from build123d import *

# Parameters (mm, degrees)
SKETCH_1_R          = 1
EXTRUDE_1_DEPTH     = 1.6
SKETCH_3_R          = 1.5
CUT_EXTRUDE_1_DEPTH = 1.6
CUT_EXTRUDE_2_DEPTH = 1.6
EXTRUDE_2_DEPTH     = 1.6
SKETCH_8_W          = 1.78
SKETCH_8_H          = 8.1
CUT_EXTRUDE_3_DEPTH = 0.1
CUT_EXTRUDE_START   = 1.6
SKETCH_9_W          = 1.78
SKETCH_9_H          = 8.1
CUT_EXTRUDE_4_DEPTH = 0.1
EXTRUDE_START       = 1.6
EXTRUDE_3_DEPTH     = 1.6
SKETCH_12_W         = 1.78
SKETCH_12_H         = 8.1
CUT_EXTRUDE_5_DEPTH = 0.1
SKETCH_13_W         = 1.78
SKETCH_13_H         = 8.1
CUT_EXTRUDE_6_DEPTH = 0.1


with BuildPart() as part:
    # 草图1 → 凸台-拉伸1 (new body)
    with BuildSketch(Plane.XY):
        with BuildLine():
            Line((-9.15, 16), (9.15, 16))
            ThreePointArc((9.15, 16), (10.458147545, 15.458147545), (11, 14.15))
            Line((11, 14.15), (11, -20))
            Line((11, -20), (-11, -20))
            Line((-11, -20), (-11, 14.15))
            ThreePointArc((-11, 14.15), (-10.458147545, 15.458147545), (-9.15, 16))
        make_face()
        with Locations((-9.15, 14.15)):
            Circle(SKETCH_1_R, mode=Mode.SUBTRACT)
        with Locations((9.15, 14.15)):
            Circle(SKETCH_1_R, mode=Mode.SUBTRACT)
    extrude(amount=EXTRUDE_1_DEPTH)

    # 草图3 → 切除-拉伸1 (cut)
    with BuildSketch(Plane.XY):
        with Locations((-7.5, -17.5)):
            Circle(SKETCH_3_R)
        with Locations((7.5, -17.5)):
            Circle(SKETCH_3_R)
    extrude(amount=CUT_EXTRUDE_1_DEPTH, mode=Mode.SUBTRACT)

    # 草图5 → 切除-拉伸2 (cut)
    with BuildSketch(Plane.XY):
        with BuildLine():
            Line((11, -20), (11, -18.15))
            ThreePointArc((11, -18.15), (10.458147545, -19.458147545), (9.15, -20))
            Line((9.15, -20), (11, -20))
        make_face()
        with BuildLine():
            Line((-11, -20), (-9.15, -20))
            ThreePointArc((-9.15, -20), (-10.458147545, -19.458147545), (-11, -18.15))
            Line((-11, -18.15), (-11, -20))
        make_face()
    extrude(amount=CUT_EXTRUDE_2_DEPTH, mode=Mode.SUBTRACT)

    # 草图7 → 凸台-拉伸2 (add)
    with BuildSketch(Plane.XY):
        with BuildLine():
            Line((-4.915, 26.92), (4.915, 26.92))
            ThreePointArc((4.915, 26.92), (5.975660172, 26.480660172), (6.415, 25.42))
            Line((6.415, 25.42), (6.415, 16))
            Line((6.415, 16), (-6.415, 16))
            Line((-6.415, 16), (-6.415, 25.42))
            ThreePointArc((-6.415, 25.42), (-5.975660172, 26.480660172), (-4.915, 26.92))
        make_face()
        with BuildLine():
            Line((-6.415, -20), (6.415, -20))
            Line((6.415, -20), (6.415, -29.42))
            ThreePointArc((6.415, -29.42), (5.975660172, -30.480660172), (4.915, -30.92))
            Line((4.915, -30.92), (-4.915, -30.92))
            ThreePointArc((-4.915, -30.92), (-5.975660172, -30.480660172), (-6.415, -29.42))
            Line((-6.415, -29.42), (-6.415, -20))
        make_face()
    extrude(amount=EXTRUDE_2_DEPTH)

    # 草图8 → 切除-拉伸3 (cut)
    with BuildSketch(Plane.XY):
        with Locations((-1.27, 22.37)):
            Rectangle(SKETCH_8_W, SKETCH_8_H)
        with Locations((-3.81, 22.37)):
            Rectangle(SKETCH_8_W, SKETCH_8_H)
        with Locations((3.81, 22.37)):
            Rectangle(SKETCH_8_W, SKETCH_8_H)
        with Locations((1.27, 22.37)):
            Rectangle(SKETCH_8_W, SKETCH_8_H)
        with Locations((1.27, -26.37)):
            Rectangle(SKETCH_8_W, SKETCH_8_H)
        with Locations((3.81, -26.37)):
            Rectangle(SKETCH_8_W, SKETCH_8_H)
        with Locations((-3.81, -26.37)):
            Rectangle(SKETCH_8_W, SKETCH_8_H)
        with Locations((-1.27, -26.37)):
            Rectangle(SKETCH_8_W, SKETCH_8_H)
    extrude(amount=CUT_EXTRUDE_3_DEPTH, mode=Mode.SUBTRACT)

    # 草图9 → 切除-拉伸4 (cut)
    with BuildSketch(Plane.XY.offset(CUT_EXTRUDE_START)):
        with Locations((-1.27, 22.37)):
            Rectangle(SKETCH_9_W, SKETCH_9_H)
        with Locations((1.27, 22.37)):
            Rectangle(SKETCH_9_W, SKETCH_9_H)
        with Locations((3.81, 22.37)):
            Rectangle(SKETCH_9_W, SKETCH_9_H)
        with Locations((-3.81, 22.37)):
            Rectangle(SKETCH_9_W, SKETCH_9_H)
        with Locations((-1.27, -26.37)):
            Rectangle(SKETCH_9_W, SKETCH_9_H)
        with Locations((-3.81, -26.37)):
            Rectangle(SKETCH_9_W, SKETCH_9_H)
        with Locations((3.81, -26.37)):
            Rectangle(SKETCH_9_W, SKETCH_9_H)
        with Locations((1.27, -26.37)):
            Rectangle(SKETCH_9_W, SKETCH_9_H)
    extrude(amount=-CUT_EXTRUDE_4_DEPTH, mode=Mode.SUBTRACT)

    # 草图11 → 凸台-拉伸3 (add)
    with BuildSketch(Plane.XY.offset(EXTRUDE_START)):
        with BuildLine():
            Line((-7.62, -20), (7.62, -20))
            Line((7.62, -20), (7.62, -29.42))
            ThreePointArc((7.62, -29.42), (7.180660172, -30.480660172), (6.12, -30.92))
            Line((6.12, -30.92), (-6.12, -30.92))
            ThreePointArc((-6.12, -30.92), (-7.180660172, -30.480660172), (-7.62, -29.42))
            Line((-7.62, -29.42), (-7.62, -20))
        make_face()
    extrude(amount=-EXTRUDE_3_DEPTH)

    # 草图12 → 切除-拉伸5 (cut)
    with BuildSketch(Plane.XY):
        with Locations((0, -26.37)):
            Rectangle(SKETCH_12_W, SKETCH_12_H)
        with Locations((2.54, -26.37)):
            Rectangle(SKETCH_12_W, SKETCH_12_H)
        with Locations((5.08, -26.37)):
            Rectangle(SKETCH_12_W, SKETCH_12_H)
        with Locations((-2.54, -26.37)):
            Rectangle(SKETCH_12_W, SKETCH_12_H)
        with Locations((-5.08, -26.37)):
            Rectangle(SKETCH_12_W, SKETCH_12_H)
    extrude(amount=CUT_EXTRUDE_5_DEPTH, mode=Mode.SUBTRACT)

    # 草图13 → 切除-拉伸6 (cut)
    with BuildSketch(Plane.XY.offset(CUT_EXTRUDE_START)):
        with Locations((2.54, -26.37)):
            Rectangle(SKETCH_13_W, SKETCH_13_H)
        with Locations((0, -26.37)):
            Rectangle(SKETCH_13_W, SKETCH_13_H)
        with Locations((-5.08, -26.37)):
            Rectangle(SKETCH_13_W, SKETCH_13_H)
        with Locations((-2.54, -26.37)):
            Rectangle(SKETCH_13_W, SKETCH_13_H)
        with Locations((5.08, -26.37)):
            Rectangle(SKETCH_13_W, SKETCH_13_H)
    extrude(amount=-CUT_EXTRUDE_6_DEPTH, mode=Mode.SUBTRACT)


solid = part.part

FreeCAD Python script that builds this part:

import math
import FreeCAD as App
import Part
import Sketcher

V = App.Vector
Q = App.Units.Quantity

doc = App.newDocument("Part")
body = doc.addObject("PartDesign::Body", "Body")

sketch1 = body.newObject("Sketcher::SketchObject", "Sketch")
sketch1.AttachmentSupport = (doc.getObject("XY_Plane"), [""])
sketch1.MapMode = "FlatFace"
sketch1.addGeometry(Part.LineSegment(V(9.2, 16, 0), V(-9.2, 16, 0)), False)
sketch1.addGeometry(Part.ArcOfCircle(Part.Circle(V(-9.1, 14.1, 0), V(0, 0, 1), 1.9), math.radians(90), math.radians(180)), False)
sketch1.addGeometry(Part.LineSegment(V(-11, 14.2, 0), V(-11, -20, 0)), False)
sketch1.addGeometry(Part.LineSegment(V(-11, -20, 0), V(11, -20, 0)), False)
sketch1.addGeometry(Part.LineSegment(V(11, -20, 0), V(11, 14.2, 0)), False)
sketch1.addGeometry(Part.ArcOfCircle(Part.Circle(V(9.1, 14.1, 0), V(0, 0, 1), 1.9), math.radians(0), math.radians(90)), False)
sketch1.addGeometry(Part.Circle(V(9.2, 14.2, 0), V(0, 0, 1), 1), False)
sketch1.addGeometry(Part.Circle(V(-9.2, 14.2, 0), V(0, 0, 1), 1), False)
sketch1.addConstraint(Sketcher.Constraint("Tangent", 0, 2, 1, 1))
sketch1.addConstraint(Sketcher.Constraint("Tangent", 1, 2, 2, 1))
sketch1.addConstraint(Sketcher.Constraint("Coincident", 2, 2, 3, 1))
sketch1.addConstraint(Sketcher.Constraint("Coincident", 3, 2, 4, 1))
sketch1.addConstraint(Sketcher.Constraint("Tangent", 4, 2, 5, 1))
sketch1.addConstraint(Sketcher.Constraint("Tangent", 5, 2, 0, 1))
sketch1.addConstraint(Sketcher.Constraint("Horizontal", 0))
sketch1.addConstraint(Sketcher.Constraint("Vertical", 2))
sketch1.addConstraint(Sketcher.Constraint("Horizontal", 3))
sketch1.addConstraint(Sketcher.Constraint("Vertical", 4))
sketch1.addConstraint(Sketcher.Constraint("Coincident", 6, 3, 5, 3))
sketch1.addConstraint(Sketcher.Constraint("Coincident", 7, 3, 1, 3))
sketch1.addConstraint(Sketcher.Constraint("Equal", 1, 5))
sketch1.addConstraint(Sketcher.Constraint("Equal", 6, 7))
sketch1.addConstraint(Sketcher.Constraint("Diameter", 6, Q("2 mm")))
sketch1.addConstraint(Sketcher.Constraint("DistanceX", 3, 1, 3, 2, Q("22 mm")))
sketch1.addConstraint(Sketcher.Constraint("Radius", 1, Q("1.85 mm")))
sketch1.addConstraint(Sketcher.Constraint("DistanceY", -1, 1, 0, 2, Q("16 mm")))
sketch1.addConstraint(Sketcher.Constraint("DistanceX", 1, 2, -1, 1, Q("11 mm")))
sketch1.addConstraint(Sketcher.Constraint("DistanceY", 2, 2, -1, 1, Q("20 mm")))
pad1 = body.newObject("PartDesign::Pad", "Pad")
pad1.Profile = sketch1
pad1.Length = 1.6

sketch2 = body.newObject("Sketcher::SketchObject", "Sketch001")
sketch2.AttachmentSupport = (doc.getObject("XY_Plane"), [""])
sketch2.MapMode = "FlatFace"
sketch2.addGeometry(Part.Circle(V(-7.5, -17.5, 0), V(0, 0, 1), 1.5), False)
sketch2.addGeometry(Part.Circle(V(7.5, -17.5, 0), V(0, 0, 1), 1.5), False)
sketch2.addConstraint(Sketcher.Constraint("Equal", 0, 1))
sketch2.addConstraint(Sketcher.Constraint("Symmetric", 0, 3, 1, 3, -2))
sketch2.addConstraint(Sketcher.Constraint("Diameter", 0, Q("3 mm")))
sketch2.addConstraint(Sketcher.Constraint("DistanceX", 0, 3, 1, 3, Q("15 mm")))
sketch2.addConstraint(Sketcher.Constraint("DistanceY", 0, 3, -1, 1, Q("17.5 mm")))
pocket1 = body.newObject("PartDesign::Pocket", "Pocket")
pocket1.Profile = sketch2
pocket1.Length = 1.6
pocket1.Reversed = True

sketch3 = body.newObject("Sketcher::SketchObject", "Sketch002")
sketch3.AttachmentSupport = (doc.getObject("XY_Plane"), [""])
sketch3.MapMode = "FlatFace"
sketch3.addGeometry(Part.LineSegment(V(11, -20, 0), V(11, -18.1, 0)), False)
sketch3.addGeometry(Part.ArcOfCircle(Part.Circle(V(9.1, -18.1, 0), V(0, 0, 1), 1.9), math.radians(-90), math.radians(0)), False)
sketch3.addGeometry(Part.LineSegment(V(9.2, -20, 0), V(11, -20, 0)), False)
sketch3.addGeometry(Part.LineSegment(V(-11, -20, 0), V(-9.2, -20, 0)), False)
sketch3.addGeometry(Part.ArcOfCircle(Part.Circle(V(-9.1, -18.1, 0), V(0, 0, 1), 1.9), math.radians(-180), math.radians(-90)), False)
sketch3.addGeometry(Part.LineSegment(V(-11, -18.1, 0), V(-11, -20, 0)), False)
sketch3.addConstraint(Sketcher.Constraint("Tangent", 0, 2, 1, 2))
sketch3.addConstraint(Sketcher.Constraint("Tangent", 1, 1, 2, 1))
sketch3.addConstraint(Sketcher.Constraint("Coincident", 2, 2, 0, 1))
sketch3.addConstraint(Sketcher.Constraint("Tangent", 3, 2, 4, 2))
sketch3.addConstraint(Sketcher.Constraint("Tangent", 4, 1, 5, 1))
sketch3.addConstraint(Sketcher.Constraint("Coincident", 5, 2, 3, 1))
sketch3.addConstraint(Sketcher.Constraint("Vertical", 0))
sketch3.addConstraint(Sketcher.Constraint("Horizontal", 2))
sketch3.addConstraint(Sketcher.Constraint("Horizontal", 3))
sketch3.addConstraint(Sketcher.Constraint("Vertical", 5))
sketch3.addConstraint(Sketcher.Constraint("Equal", 1, 4))
sketch3.addConstraint(Sketcher.Constraint("Symmetric", 1, 3, 4, 3, -2))
sketch3.addConstraint(Sketcher.Constraint("Radius", 1, Q("1.85 mm")))
sketch3.addConstraint(Sketcher.Constraint("DistanceX", -1, 1, 0, 2, Q("11 mm")))
sketch3.addConstraint(Sketcher.Constraint("DistanceY", 1, 1, -1, 1, Q("20 mm")))
pocket2 = body.newObject("PartDesign::Pocket", "Pocket001")
pocket2.Profile = sketch3
pocket2.Length = 1.6
pocket2.Reversed = True

sketch4 = body.newObject("Sketcher::SketchObject", "Sketch003")
sketch4.AttachmentSupport = (doc.getObject("XY_Plane"), [""])
sketch4.MapMode = "FlatFace"
sketch4.addGeometry(Part.LineSegment(V(4.9, 26.9, 0), V(-4.9, 26.9, 0)), False)
sketch4.addGeometry(Part.ArcOfCircle(Part.Circle(V(-4.9, 25.4, 0), V(0, 0, 1), 1.5), math.radians(90), math.radians(180)), False)
sketch4.addGeometry(Part.LineSegment(V(-6.4, 25.4, 0), V(-6.4, 16, 0)), False)
sketch4.addGeometry(Part.LineSegment(V(-6.4, 16, 0), V(6.4, 16, 0)), False)
sketch4.addGeometry(Part.LineSegment(V(6.4, 16, 0), V(6.4, 25.4, 0)), False)
sketch4.addGeometry(Part.ArcOfCircle(Part.Circle(V(4.9, 25.4, 0), V(0, 0, 1), 1.5), math.radians(0), math.radians(90)), False)
sketch4.addGeometry(Part.LineSegment(V(6.4, -20, 0), V(-6.4, -20, 0)), False)
sketch4.addGeometry(Part.LineSegment(V(-6.4, -20, 0), V(-6.4, -29.4, 0)), False)
sketch4.addGeometry(Part.ArcOfCircle(Part.Circle(V(-4.9, -29.4, 0), V(0, 0, 1), 1.5), math.radians(180), math.radians(270)), False)
sketch4.addGeometry(Part.LineSegment(V(-4.9, -30.9, 0), V(4.9, -30.9, 0)), False)
sketch4.addGeometry(Part.ArcOfCircle(Part.Circle(V(4.9, -29.4, 0), V(0, 0, 1), 1.5), math.radians(-90), math.radians(0)), False)
sketch4.addGeometry(Part.LineSegment(V(6.4, -29.4, 0), V(6.4, -20, 0)), False)
sketch4.addConstraint(Sketcher.Constraint("Tangent", 0, 2, 1, 1))
sketch4.addConstraint(Sketcher.Constraint("Tangent", 1, 2, 2, 1))
sketch4.addConstraint(Sketcher.Constraint("Coincident", 2, 2, 3, 1))
sketch4.addConstraint(Sketcher.Constraint("Coincident", 3, 2, 4, 1))
sketch4.addConstraint(Sketcher.Constraint("Tangent", 4, 2, 5, 1))
sketch4.addConstraint(Sketcher.Constraint("Tangent", 5, 2, 0, 1))
sketch4.addConstraint(Sketcher.Constraint("Coincident", 6, 2, 7, 1))
sketch4.addConstraint(Sketcher.Constraint("Tangent", 7, 2, 8, 1))
sketch4.addConstraint(Sketcher.Constraint("Tangent", 8, 2, 9, 1))
sketch4.addConstraint(Sketcher.Constraint("Tangent", 9, 2, 10, 1))
sketch4.addConstraint(Sketcher.Constraint("Tangent", 10, 2, 11, 1))
sketch4.addConstraint(Sketcher.Constraint("Coincident", 11, 2, 6, 1))
sketch4.addConstraint(Sketcher.Constraint("Horizontal", 0))
sketch4.addConstraint(Sketcher.Constraint("Vertical", 2))
sketch4.addConstraint(Sketcher.Constraint("Horizontal", 3))
sketch4.addConstraint(Sketcher.Constraint("Vertical", 4))
sketch4.addConstraint(Sketcher.Constraint("Horizontal", 6))
sketch4.addConstraint(Sketcher.Constraint("Vertical", 7))
sketch4.addConstraint(Sketcher.Constraint("Horizontal", 9))
sketch4.addConstraint(Sketcher.Constraint("Vertical", 11))
sketch4.addConstraint(Sketcher.Constraint("Equal", 1, 5))
sketch4.addConstraint(Sketcher.Constraint("Equal", 5, 8))
sketch4.addConstraint(Sketcher.Constraint("Equal", 8, 10))
sketch4.addConstraint(Sketcher.Constraint("Vertical", 1, 3, 8, 3))
sketch4.addConstraint(Sketcher.Constraint("Vertical", 5, 3, 10, 3))
sketch4.addConstraint(Sketcher.Constraint("Equal", 4, 7))
sketch4.addConstraint(Sketcher.Constraint("Radius", 1, Q("1.5 mm")))
sketch4.addConstraint(Sketcher.Constraint("DistanceY", -1, 1, 2, 2, Q("16 mm")))
sketch4.addConstraint(Sketcher.Constraint("DistanceY", 6, 2, -1, 1, Q("20 mm")))
sketch4.addConstraint(Sketcher.Constraint("DistanceX", 0, 2, 0, 1, Q("9.83 mm")))
sketch4.addConstraint(Sketcher.Constraint("DistanceY", 2, 2, 2, 1, Q("9.42 mm")))
sketch4.addConstraint(Sketcher.Constraint("DistanceX", 1, 3, -1, 1, Q("4.915 mm")))
pad2 = body.newObject("PartDesign::Pad", "Pad001")
pad2.Profile = sketch4
pad2.Length = 1.6

sketch5 = body.newObject("Sketcher::SketchObject", "Sketch004")
sketch5.AttachmentSupport = (doc.getObject("XY_Plane"), [""])
sketch5.MapMode = "FlatFace"
sketch5.addGeometry(Part.LineSegment(V(-2.2, 26.4, 0), V(-2.2, 18.3, 0)), False)
sketch5.addGeometry(Part.LineSegment(V(-2.2, 18.3, 0), V(-0.4, 18.3, 0)), False)
sketch5.addGeometry(Part.LineSegment(V(-0.4, 18.3, 0), V(-0.4, 26.4, 0)), False)
sketch5.addGeometry(Part.LineSegment(V(-0.4, 26.4, 0), V(-2.2, 26.4, 0)), False)
sketch5.addGeometry(Part.LineSegment(V(-4.7, 26.4, 0), V(-4.7, 18.3, 0)), False)
sketch5.addGeometry(Part.LineSegment(V(-4.7, 18.3, 0), V(-2.9, 18.3, 0)), False)
sketch5.addGeometry(Part.LineSegment(V(-2.9, 18.3, 0), V(-2.9, 26.4, 0)), False)
sketch5.addGeometry(Part.LineSegment(V(-2.9, 26.4, 0), V(-4.7, 26.4, 0)), False)
sketch5.addGeometry(Part.LineSegment(V(2.9, 26.4, 0), V(2.9, 18.3, 0)), False)
sketch5.addGeometry(Part.LineSegment(V(2.9, 18.3, 0), V(4.7, 18.3, 0)), False)
sketch5.addGeometry(Part.LineSegment(V(4.7, 18.3, 0), V(4.7, 26.4, 0)), False)
sketch5.addGeometry(Part.LineSegment(V(4.7, 26.4, 0), V(2.9, 26.4, 0)), False)
sketch5.addGeometry(Part.LineSegment(V(0.4, 26.4, 0), V(0.4, 18.3, 0)), False)
sketch5.addGeometry(Part.LineSegment(V(0.4, 18.3, 0), V(2.2, 18.3, 0)), False)
sketch5.addGeometry(Part.LineSegment(V(2.2, 18.3, 0), V(2.2, 26.4, 0)), False)
sketch5.addGeometry(Part.LineSegment(V(2.2, 26.4, 0), V(0.4, 26.4, 0)), False)
sketch5.addGeometry(Part.LineSegment(V(0.4, -22.3, 0), V(0.4, -30.4, 0)), False)
sketch5.addGeometry(Part.LineSegment(V(0.4, -30.4, 0), V(2.2, -30.4, 0)), False)
sketch5.addGeometry(Part.LineSegment(V(2.2, -30.4, 0), V(2.2, -22.3, 0)), False)
sketch5.addGeometry(Part.LineSegment(V(2.2, -22.3, 0), V(0.4, -22.3, 0)), False)
sketch5.addGeometry(Part.LineSegment(V(2.9, -22.3, 0), V(2.9, -30.4, 0)), False)
sketch5.addGeometry(Part.LineSegment(V(2.9, -30.4, 0), V(4.7, -30.4, 0)), False)
sketch5.addGeometry(Part.LineSegment(V(4.7, -30.4, 0), V(4.7, -22.3, 0)), False)
sketch5.addGeometry(Part.LineSegment(V(4.7, -22.3, 0), V(2.9, -22.3, 0)), False)
sketch5.addGeometry(Part.LineSegment(V(-4.7, -22.3, 0), V(-4.7, -30.4, 0)), False)
sketch5.addGeometry(Part.LineSegment(V(-4.7, -30.4, 0), V(-2.9, -30.4, 0)), False)
sketch5.addGeometry(Part.LineSegment(V(-2.9, -30.4, 0), V(-2.9, -22.3, 0)), False)
sketch5.addGeometry(Part.LineSegment(V(-2.9, -22.3, 0), V(-4.7, -22.3, 0)), False)
sketch5.addGeometry(Part.LineSegment(V(-2.2, -22.3, 0), V(-2.2, -30.4, 0)), False)
sketch5.addGeometry(Part.LineSegment(V(-2.2, -30.4, 0), V(-0.4, -30.4, 0)), False)
sketch5.addGeometry(Part.LineSegment(V(-0.4, -30.4, 0), V(-0.4, -22.3, 0)), False)
sketch5.addGeometry(Part.LineSegment(V(-0.4, -22.3, 0), V(-2.2, -22.3, 0)), False)
sketch5.addConstraint(Sketcher.Constraint("Coincident", 0, 2, 1, 1))
sketch5.addConstraint(Sketcher.Constraint("Coincident", 1, 2, 2, 1))
sketch5.addConstraint(Sketcher.Constraint("Coincident", 2, 2, 3, 1))
sketch5.addConstraint(Sketcher.Constraint("Coincident", 3, 2, 0, 1))
sketch5.addConstraint(Sketcher.Constraint("Coincident", 4, 2, 5, 1))
sketch5.addConstraint(Sketcher.Constraint("Coincident", 5, 2, 6, 1))
sketch5.addConstraint(Sketcher.Constraint("Coincident", 6, 2, 7, 1))
sketch5.addConstraint(Sketcher.Constraint("Coincident", 7, 2, 4, 1))
sketch5.addConstraint(Sketcher.Constraint("Coincident", 8, 2, 9, 1))
sketch5.addConstraint(Sketcher.Constraint("Coincident", 9, 2, 10, 1))
sketch5.addConstraint(Sketcher.Constraint("Coincident", 10, 2, 11, 1))
sketch5.addConstraint(Sketcher.Constraint("Coincident", 11, 2, 8, 1))
sketch5.addConstraint(Sketcher.Constraint("Coincident", 12, 2, 13, 1))
sketch5.addConstraint(Sketcher.Constraint("Coincident", 13, 2, 14, 1))
sketch5.addConstraint(Sketcher.Constraint("Coincident", 14, 2, 15, 1))
sketch5.addConstraint(Sketcher.Constraint("Coincident", 15, 2, 12, 1))
sketch5.addConstraint(Sketcher.Constraint("Coincident", 16, 2, 17, 1))
sketch5.addConstraint(Sketcher.Constraint("Coincident", 17, 2, 18, 1))
sketch5.addConstraint(Sketcher.Constraint("Coincident", 18, 2, 19, 1))
sketch5.addConstraint(Sketcher.Constraint("Coincident", 19, 2, 16, 1))
sketch5.addConstraint(Sketcher.Constraint("Coincident", 20, 2, 21, 1))
sketch5.addConstraint(Sketcher.Constraint("Coincident", 21, 2, 22, 1))
sketch5.addConstraint(Sketcher.Constraint("Coincident", 22, 2, 23, 1))
sketch5.addConstraint(Sketcher.Constraint("Coincident", 23, 2, 20, 1))
sketch5.addConstraint(Sketcher.Constraint("Coincident", 24, 2, 25, 1))
sketch5.addConstraint(Sketcher.Constraint("Coincident", 25, 2, 26, 1))
sketch5.addConstraint(Sketcher.Constraint("Coincident", 26, 2, 27, 1))
sketch5.addConstraint(Sketcher.Constraint("Coincident", 27, 2, 24, 1))
sketch5.addConstraint(Sketcher.Constraint("Coincident", 28, 2, 29, 1))
sketch5.addConstraint(Sketcher.Constraint("Coincident", 29, 2, 30, 1))
sketch5.addConstraint(Sketcher.Constraint("Coincident", 30, 2, 31, 1))
sketch5.addConstraint(Sketcher.Constraint("Coincident", 31, 2, 28, 1))
sketch5.addConstraint(Sketcher.Constraint("Vertical", 0))
sketch5.addConstraint(Sketcher.Constraint("Horizontal", 1))
sketch5.addConstraint(Sketcher.Constraint("Vertical", 2))
sketch5.addConstraint(Sketcher.Constraint("Horizontal", 3))
sketch5.addConstraint(Sketcher.Constraint("Vertical", 4))
sketch5.addConstraint(Sketcher.Constraint("Horizontal", 5))
sketch5.addConstraint(Sketcher.Constraint("Vertical", 6))
sketch5.addConstraint(Sketcher.Constraint("Horizontal", 7))
sketch5.addConstraint(Sketcher.Constraint("Vertical", 8))
sketch5.addConstraint(Sketcher.Constraint("Horizontal", 9))
sketch5.addConstraint(Sketcher.Constraint("Vertical", 10))
sketch5.addConstraint(Sketcher.Constraint("Horizontal", 11))
sketch5.addConstraint(Sketcher.Constraint("Vertical", 12))
sketch5.addConstraint(Sketcher.Constraint("Horizontal", 13))
sketch5.addConstraint(Sketcher.Constraint("Vertical", 14))
sketch5.addConstraint(Sketcher.Constraint("Horizontal", 15))
sketch5.addConstraint(Sketcher.Constraint("Vertical", 16))
sketch5.addConstraint(Sketcher.Constraint("Horizontal", 17))
sketch5.addConstraint(Sketcher.Constraint("Vertical", 18))
sketch5.addConstraint(Sketcher.Constraint("Horizontal", 19))
sketch5.addConstraint(Sketcher.Constraint("Vertical", 20))
sketch5.addConstraint(Sketcher.Constraint("Horizontal", 21))
sketch5.addConstraint(Sketcher.Constraint("Vertical", 22))
sketch5.addConstraint(Sketcher.Constraint("Horizontal", 23))
sketch5.addConstraint(Sketcher.Constraint("Vertical", 24))
sketch5.addConstraint(Sketcher.Constraint("Horizontal", 25))
sketch5.addConstraint(Sketcher.Constraint("Vertical", 26))
sketch5.addConstraint(Sketcher.Constraint("Horizontal", 27))
sketch5.addConstraint(Sketcher.Constraint("Vertical", 28))
sketch5.addConstraint(Sketcher.Constraint("Horizontal", 29))
sketch5.addConstraint(Sketcher.Constraint("Vertical", 30))
sketch5.addConstraint(Sketcher.Constraint("Horizontal", 31))
sketch5.addConstraint(Sketcher.Constraint("Symmetric", 5, 2, 8, 2, -2))
sketch5.addConstraint(Sketcher.Constraint("Symmetric", 7, 2, 10, 2, -2))
sketch5.addConstraint(Sketcher.Constraint("Symmetric", 1, 2, 12, 2, -2))
sketch5.addConstraint(Sketcher.Constraint("Symmetric", 3, 2, 14, 2, -2))
sketch5.addConstraint(Sketcher.Constraint("Symmetric", 21, 2, 24, 2, -2))
sketch5.addConstraint(Sketcher.Constraint("Symmetric", 23, 2, 26, 2, -2))
sketch5.addConstraint(Sketcher.Constraint("Symmetric", 17, 2, 28, 2, -2))
sketch5.addConstraint(Sketcher.Constraint("Symmetric", 19, 2, 30, 2, -2))
sketch5.addConstraint(Sketcher.Constraint("Horizontal", 1, 2, 4, 2))
sketch5.addConstraint(Sketcher.Constraint("Horizontal", 3, 2, 6, 2))
sketch5.addConstraint(Sketcher.Constraint("Horizontal", 17, 2, 20, 2))
sketch5.addConstraint(Sketcher.Constraint("Horizontal", 19, 2, 22, 2))
sketch5.addConstraint(Sketcher.Constraint("Vertical", 15, 2, 16, 2))
sketch5.addConstraint(Sketcher.Constraint("Vertical", 14, 2, 17, 2))
sketch5.addConstraint(Sketcher.Constraint("Vertical", 11, 2, 20, 2))
sketch5.addConstraint(Sketcher.Constraint("Vertical", 10, 2, 21, 2))
sketch5.addConstraint(Sketcher.Constraint("Equal", 3, 5))
sketch5.addConstraint(Sketcher.Constraint("Equal", 14, 16))
sketch5.addConstraint(Sketcher.Constraint("DistanceY", 0, 2, 0, 1, Q("8.1 mm")))
sketch5.addConstraint(Sketcher.Constraint("DistanceX", 1, 1, 1, 2, Q("1.78 mm")))
sketch5.addConstraint(Sketcher.Constraint("DistanceX", 4, 2, -1, 1, Q("4.7 mm")))
sketch5.addConstraint(Sketcher.Constraint("DistanceX", 1, 2, 8, 2, Q("3.3 mm")))
sketch5.addConstraint(Sketcher.Constraint("DistanceY", -1, 1, 0, 2, Q("18.32 mm")))
sketch5.addConstraint(Sketcher.Constraint("DistanceY", 16, 2, -1, 1, Q("30.42 mm")))
pocket3 = body.newObject("PartDesign::Pocket", "Pocket002")
pocket3.Profile = sketch5
pocket3.Length = 0.1
pocket3.Reversed = True

sketch6 = body.newObject("Sketcher::SketchObject", "Sketch005")
sketch6.AttachmentSupport = (doc.getObject("XY_Plane"), [""])
sketch6.MapMode = "FlatFace"
sketch6.AttachmentOffset = App.Placement(V(0, 0, 1.6), App.Rotation())
sketch6.addGeometry(Part.LineSegment(V(-2.2, 26.4, 0), V(-2.2, 18.3, 0)), False)
sketch6.addGeometry(Part.LineSegment(V(-2.2, 18.3, 0), V(-0.4, 18.3, 0)), False)
sketch6.addGeometry(Part.LineSegment(V(-0.4, 18.3, 0), V(-0.4, 26.4, 0)), False)
sketch6.addGeometry(Part.LineSegment(V(-0.4, 26.4, 0), V(-2.2, 26.4, 0)), False)
sketch6.addGeometry(Part.LineSegment(V(0.4, 26.4, 0), V(0.4, 18.3, 0)), False)
sketch6.addGeometry(Part.LineSegment(V(0.4, 18.3, 0), V(2.2, 18.3, 0)), False)
sketch6.addGeometry(Part.LineSegment(V(2.2, 18.3, 0), V(2.2, 26.4, 0)), False)
sketch6.addGeometry(Part.LineSegment(V(2.2, 26.4, 0), V(0.4, 26.4, 0)), False)
sketch6.addGeometry(Part.LineSegment(V(2.9, 26.4, 0), V(2.9, 18.3, 0)), False)
sketch6.addGeometry(Part.LineSegment(V(2.9, 18.3, 0), V(4.7, 18.3, 0)), False)
sketch6.addGeometry(Part.LineSegment(V(4.7, 18.3, 0), V(4.7, 26.4, 0)), False)
sketch6.addGeometry(Part.LineSegment(V(4.7, 26.4, 0), V(2.9, 26.4, 0)), False)
sketch6.addGeometry(Part.LineSegment(V(-4.7, 26.4, 0), V(-4.7, 18.3, 0)), False)
sketch6.addGeometry(Part.LineSegment(V(-4.7, 18.3, 0), V(-2.9, 18.3, 0)), False)
sketch6.addGeometry(Part.LineSegment(V(-2.9, 18.3, 0), V(-2.9, 26.4, 0)), False)
sketch6.addGeometry(Part.LineSegment(V(-2.9, 26.4, 0), V(-4.7, 26.4, 0)), False)
sketch6.addGeometry(Part.LineSegment(V(-2.2, -22.3, 0), V(-2.2, -30.4, 0)), False)
sketch6.addGeometry(Part.LineSegment(V(-2.2, -30.4, 0), V(-0.4, -30.4, 0)), False)
sketch6.addGeometry(Part.LineSegment(V(-0.4, -30.4, 0), V(-0.4, -22.3, 0)), False)
sketch6.addGeometry(Part.LineSegment(V(-0.4, -22.3, 0), V(-2.2, -22.3, 0)), False)
sketch6.addGeometry(Part.LineSegment(V(-4.7, -22.3, 0), V(-4.7, -30.4, 0)), False)
sketch6.addGeometry(Part.LineSegment(V(-4.7, -30.4, 0), V(-2.9, -30.4, 0)), False)
sketch6.addGeometry(Part.LineSegment(V(-2.9, -30.4, 0), V(-2.9, -22.3, 0)), False)
sketch6.addGeometry(Part.LineSegment(V(-2.9, -22.3, 0), V(-4.7, -22.3, 0)), False)
sketch6.addGeometry(Part.LineSegment(V(2.9, -22.3, 0), V(2.9, -30.4, 0)), False)
sketch6.addGeometry(Part.LineSegment(V(2.9, -30.4, 0), V(4.7, -30.4, 0)), False)
sketch6.addGeometry(Part.LineSegment(V(4.7, -30.4, 0), V(4.7, -22.3, 0)), False)
sketch6.addGeometry(Part.LineSegment(V(4.7, -22.3, 0), V(2.9, -22.3, 0)), False)
sketch6.addGeometry(Part.LineSegment(V(0.4, -22.3, 0), V(0.4, -30.4, 0)), False)
sketch6.addGeometry(Part.LineSegment(V(0.4, -30.4, 0), V(2.2, -30.4, 0)), False)
sketch6.addGeometry(Part.LineSegment(V(2.2, -30.4, 0), V(2.2, -22.3, 0)), False)
sketch6.addGeometry(Part.LineSegment(V(2.2, -22.3, 0), V(0.4, -22.3, 0)), False)
sketch6.addConstraint(Sketcher.Constraint("Coincident", 0, 2, 1, 1))
sketch6.addConstraint(Sketcher.Constraint("Coincident", 1, 2, 2, 1))
sketch6.addConstraint(Sketcher.Constraint("Coincident", 2, 2, 3, 1))
sketch6.addConstraint(Sketcher.Constraint("Coincident", 3, 2, 0, 1))
sketch6.addConstraint(Sketcher.Constraint("Coincident", 4, 2, 5, 1))
sketch6.addConstraint(Sketcher.Constraint("Coincident", 5, 2, 6, 1))
sketch6.addConstraint(Sketcher.Constraint("Coincident", 6, 2, 7, 1))
sketch6.addConstraint(Sketcher.Constraint("Coincident", 7, 2, 4, 1))
sketch6.addConstraint(Sketcher.Constraint("Coincident", 8, 2, 9, 1))
sketch6.addConstraint(Sketcher.Constraint("Coincident", 9, 2, 10, 1))
sketch6.addConstraint(Sketcher.Constraint("Coincident", 10, 2, 11, 1))
sketch6.addConstraint(Sketcher.Constraint("Coincident", 11, 2, 8, 1))
sketch6.addConstraint(Sketcher.Constraint("Coincident", 12, 2, 13, 1))
sketch6.addConstraint(Sketcher.Constraint("Coincident", 13, 2, 14, 1))
sketch6.addConstraint(Sketcher.Constraint("Coincident", 14, 2, 15, 1))
sketch6.addConstraint(Sketcher.Constraint("Coincident", 15, 2, 12, 1))
sketch6.addConstraint(Sketcher.Constraint("Coincident", 16, 2, 17, 1))
sketch6.addConstraint(Sketcher.Constraint("Coincident", 17, 2, 18, 1))
sketch6.addConstraint(Sketcher.Constraint("Coincident", 18, 2, 19, 1))
sketch6.addConstraint(Sketcher.Constraint("Coincident", 19, 2, 16, 1))
sketch6.addConstraint(Sketcher.Constraint("Coincident", 20, 2, 21, 1))
sketch6.addConstraint(Sketcher.Constraint("Coincident", 21, 2, 22, 1))
sketch6.addConstraint(Sketcher.Constraint("Coincident", 22, 2, 23, 1))
sketch6.addConstraint(Sketcher.Constraint("Coincident", 23, 2, 20, 1))
sketch6.addConstraint(Sketcher.Constraint("Coincident", 24, 2, 25, 1))
sketch6.addConstraint(Sketcher.Constraint("Coincident", 25, 2, 26, 1))
sketch6.addConstraint(Sketcher.Constraint("Coincident", 26, 2, 27, 1))
sketch6.addConstraint(Sketcher.Constraint("Coincident", 27, 2, 24, 1))
sketch6.addConstraint(Sketcher.Constraint("Coincident", 28, 2, 29, 1))
sketch6.addConstraint(Sketcher.Constraint("Coincident", 29, 2, 30, 1))
sketch6.addConstraint(Sketcher.Constraint("Coincident", 30, 2, 31, 1))
sketch6.addConstraint(Sketcher.Constraint("Coincident", 31, 2, 28, 1))
sketch6.addConstraint(Sketcher.Constraint("Vertical", 0))
sketch6.addConstraint(Sketcher.Constraint("Horizontal", 1))
sketch6.addConstraint(Sketcher.Constraint("Vertical", 2))
sketch6.addConstraint(Sketcher.Constraint("Horizontal", 3))
sketch6.addConstraint(Sketcher.Constraint("Vertical", 4))
sketch6.addConstraint(Sketcher.Constraint("Horizontal", 5))
sketch6.addConstraint(Sketcher.Constraint("Vertical", 6))
sketch6.addConstraint(Sketcher.Constraint("Horizontal", 7))
sketch6.addConstraint(Sketcher.Constraint("Vertical", 8))
sketch6.addConstraint(Sketcher.Constraint("Horizontal", 9))
sketch6.addConstraint(Sketcher.Constraint("Vertical", 10))
sketch6.addConstraint(Sketcher.Constraint("Horizontal", 11))
sketch6.addConstraint(Sketcher.Constraint("Vertical", 12))
sketch6.addConstraint(Sketcher.Constraint("Horizontal", 13))
sketch6.addConstraint(Sketcher.Constraint("Vertical", 14))
sketch6.addConstraint(Sketcher.Constraint("Horizontal", 15))
sketch6.addConstraint(Sketcher.Constraint("Vertical", 16))
sketch6.addConstraint(Sketcher.Constraint("Horizontal", 17))
sketch6.addConstraint(Sketcher.Constraint("Vertical", 18))
sketch6.addConstraint(Sketcher.Constraint("Horizontal", 19))
sketch6.addConstraint(Sketcher.Constraint("Vertical", 20))
sketch6.addConstraint(Sketcher.Constraint("Horizontal", 21))
sketch6.addConstraint(Sketcher.Constraint("Vertical", 22))
sketch6.addConstraint(Sketcher.Constraint("Horizontal", 23))
sketch6.addConstraint(Sketcher.Constraint("Vertical", 24))
sketch6.addConstraint(Sketcher.Constraint("Horizontal", 25))
sketch6.addConstraint(Sketcher.Constraint("Vertical", 26))
sketch6.addConstraint(Sketcher.Constraint("Horizontal", 27))
sketch6.addConstraint(Sketcher.Constraint("Vertical", 28))
sketch6.addConstraint(Sketcher.Constraint("Horizontal", 29))
sketch6.addConstraint(Sketcher.Constraint("Vertical", 30))
sketch6.addConstraint(Sketcher.Constraint("Horizontal", 31))
sketch6.addConstraint(Sketcher.Constraint("Symmetric", 1, 2, 4, 2, -2))
sketch6.addConstraint(Sketcher.Constraint("Symmetric", 3, 2, 6, 2, -2))
sketch6.addConstraint(Sketcher.Constraint("Symmetric", 9, 2, 12, 2, -2))
sketch6.addConstraint(Sketcher.Constraint("Symmetric", 11, 2, 14, 2, -2))
sketch6.addConstraint(Sketcher.Constraint("Symmetric", 21, 2, 24, 2, -2))
sketch6.addConstraint(Sketcher.Constraint("Symmetric", 23, 2, 26, 2, -2))
sketch6.addConstraint(Sketcher.Constraint("Symmetric", 17, 2, 28, 2, -2))
sketch6.addConstraint(Sketcher.Constraint("Symmetric", 19, 2, 30, 2, -2))
sketch6.addConstraint(Sketcher.Constraint("Horizontal", 5, 2, 8, 2))
sketch6.addConstraint(Sketcher.Constraint("Horizontal", 7, 2, 10, 2))
sketch6.addConstraint(Sketcher.Constraint("Horizontal", 17, 2, 20, 2))
sketch6.addConstraint(Sketcher.Constraint("Horizontal", 19, 2, 22, 2))
sketch6.addConstraint(Sketcher.Constraint("Vertical", 3, 2, 16, 2))
sketch6.addConstraint(Sketcher.Constraint("Vertical", 2, 2, 17, 2))
sketch6.addConstraint(Sketcher.Constraint("Vertical", 15, 2, 20, 2))
sketch6.addConstraint(Sketcher.Constraint("Vertical", 14, 2, 21, 2))
sketch6.addConstraint(Sketcher.Constraint("Equal", 7, 9))
sketch6.addConstraint(Sketcher.Constraint("Equal", 14, 16))
sketch6.addConstraint(Sketcher.Constraint("DistanceY", 0, 2, 0, 1, Q("8.1 mm")))
sketch6.addConstraint(Sketcher.Constraint("DistanceX", 1, 1, 1, 2, Q("1.78 mm")))
sketch6.addConstraint(Sketcher.Constraint("DistanceX", -1, 1, 9, 2, Q("4.7 mm")))
sketch6.addConstraint(Sketcher.Constraint("DistanceX", 1, 2, 8, 2, Q("3.3 mm")))
sketch6.addConstraint(Sketcher.Constraint("DistanceY", -1, 1, 0, 2, Q("18.32 mm")))
sketch6.addConstraint(Sketcher.Constraint("DistanceY", 16, 2, -1, 1, Q("30.42 mm")))
pocket4 = body.newObject("PartDesign::Pocket", "Pocket003")
pocket4.Profile = sketch6
pocket4.Length = 0.1

sketch7 = body.newObject("Sketcher::SketchObject", "Sketch006")
sketch7.AttachmentSupport = (doc.getObject("XY_Plane"), [""])
sketch7.MapMode = "FlatFace"
sketch7.AttachmentOffset = App.Placement(V(0, 0, 1.6), App.Rotation())
sketch7.addGeometry(Part.LineSegment(V(7.6, -20, 0), V(-7.6, -20, 0)), False)
sketch7.addGeometry(Part.LineSegment(V(-7.6, -20, 0), V(-7.6, -29.4, 0)), False)
sketch7.addGeometry(Part.ArcOfCircle(Part.Circle(V(-6.1, -29.4, 0), V(0, 0, 1), 1.5), math.radians(180), math.radians(270)), False)
sketch7.addGeometry(Part.LineSegment(V(-6.1, -30.9, 0), V(6.1, -30.9, 0)), False)
sketch7.addGeometry(Part.ArcOfCircle(Part.Circle(V(6.1, -29.4, 0), V(0, 0, 1), 1.5), math.radians(-90), math.radians(0)), False)
sketch7.addGeometry(Part.LineSegment(V(7.6, -29.4, 0), V(7.6, -20, 0)), False)
sketch7.addConstraint(Sketcher.Constraint("Coincident", 0, 2, 1, 1))
sketch7.addConstraint(Sketcher.Constraint("Tangent", 1, 2, 2, 1))
sketch7.addConstraint(Sketcher.Constraint("Tangent", 2, 2, 3, 1))
sketch7.addConstraint(Sketcher.Constraint("Tangent", 3, 2, 4, 1))
sketch7.addConstraint(Sketcher.Constraint("Tangent", 4, 2, 5, 1))
sketch7.addConstraint(Sketcher.Constraint("Coincident", 5, 2, 0, 1))
sketch7.addConstraint(Sketcher.Constraint("Horizontal", 0))
sketch7.addConstraint(Sketcher.Constraint("Vertical", 1))
sketch7.addConstraint(Sketcher.Constraint("Horizontal", 3))
sketch7.addConstraint(Sketcher.Constraint("Vertical", 5))
sketch7.addConstraint(Sketcher.Constraint("Equal", 2, 4))
sketch7.addConstraint(Sketcher.Constraint("Radius", 2, Q("1.5 mm")))
sketch7.addConstraint(Sketcher.Constraint("DistanceY", 0, 2, -1, 1, Q("20 mm")))
sketch7.addConstraint(Sketcher.Constraint("DistanceX", 0, 2, 0, 1, Q("15.24 mm")))
sketch7.addConstraint(Sketcher.Constraint("DistanceY", 1, 2, 1, 1, Q("9.42 mm")))
sketch7.addConstraint(Sketcher.Constraint("DistanceX", 2, 3, -1, 1, Q("6.12 mm")))
pad3 = body.newObject("PartDesign::Pad", "Pad002")
pad3.Profile = sketch7
pad3.Length = 1.6
pad3.Reversed = True

sketch8 = body.newObject("Sketcher::SketchObject", "Sketch007")
sketch8.AttachmentSupport = (doc.getObject("XY_Plane"), [""])
sketch8.MapMode = "FlatFace"
sketch8.addGeometry(Part.LineSegment(V(-0.9, -22.3, 0), V(-0.9, -30.4, 0)), False)
sketch8.addGeometry(Part.LineSegment(V(-0.9, -30.4, 0), V(0.9, -30.4, 0)), False)
sketch8.addGeometry(Part.LineSegment(V(0.9, -30.4, 0), V(0.9, -22.3, 0)), False)
sketch8.addGeometry(Part.LineSegment(V(0.9, -22.3, 0), V(-0.9, -22.3, 0)), False)
sketch8.addGeometry(Part.LineSegment(V(1.6, -22.3, 0), V(1.6, -30.4, 0)), False)
sketch8.addGeometry(Part.LineSegment(V(1.6, -30.4, 0), V(3.4, -30.4, 0)), False)
sketch8.addGeometry(Part.LineSegment(V(3.4, -30.4, 0), V(3.4, -22.3, 0)), False)
sketch8.addGeometry(Part.LineSegment(V(3.4, -22.3, 0), V(1.6, -22.3, 0)), False)
sketch8.addGeometry(Part.LineSegment(V(4.2, -22.3, 0), V(4.2, -30.4, 0)), False)
sketch8.addGeometry(Part.LineSegment(V(4.2, -30.4, 0), V(6, -30.4, 0)), False)
sketch8.addGeometry(Part.LineSegment(V(6, -30.4, 0), V(6, -22.3, 0)), False)
sketch8.addGeometry(Part.LineSegment(V(6, -22.3, 0), V(4.2, -22.3, 0)), False)
sketch8.addGeometry(Part.LineSegment(V(-3.4, -22.3, 0), V(-3.4, -30.4, 0)), False)
sketch8.addGeometry(Part.LineSegment(V(-3.4, -30.4, 0), V(-1.6, -30.4, 0)), False)
sketch8.addGeometry(Part.LineSegment(V(-1.6, -30.4, 0), V(-1.6, -22.3, 0)), False)
sketch8.addGeometry(Part.LineSegment(V(-1.6, -22.3, 0), V(-3.4, -22.3, 0)), False)
sketch8.addGeometry(Part.LineSegment(V(-6, -22.3, 0), V(-6, -30.4, 0)), False)
sketch8.addGeometry(Part.LineSegment(V(-6, -30.4, 0), V(-4.2, -30.4, 0)), False)
sketch8.addGeometry(Part.LineSegment(V(-4.2, -30.4, 0), V(-4.2, -22.3, 0)), False)
sketch8.addGeometry(Part.LineSegment(V(-4.2, -22.3, 0), V(-6, -22.3, 0)), False)
sketch8.addConstraint(Sketcher.Constraint("Coincident", 0, 2, 1, 1))
sketch8.addConstraint(Sketcher.Constraint("Coincident", 1, 2, 2, 1))
sketch8.addConstraint(Sketcher.Constraint("Coincident", 2, 2, 3, 1))
sketch8.addConstraint(Sketcher.Constraint("Coincident", 3, 2, 0, 1))
sketch8.addConstraint(Sketcher.Constraint("Coincident", 4, 2, 5, 1))
sketch8.addConstraint(Sketcher.Constraint("Coincident", 5, 2, 6, 1))
sketch8.addConstraint(Sketcher.Constraint("Coincident", 6, 2, 7, 1))
sketch8.addConstraint(Sketcher.Constraint("Coincident", 7, 2, 4, 1))
sketch8.addConstraint(Sketcher.Constraint("Coincident", 8, 2, 9, 1))
sketch8.addConstraint(Sketcher.Constraint("Coincident", 9, 2, 10, 1))
sketch8.addConstraint(Sketcher.Constraint("Coincident", 10, 2, 11, 1))
sketch8.addConstraint(Sketcher.Constraint("Coincident", 11, 2, 8, 1))
sketch8.addConstraint(Sketcher.Constraint("Coincident", 12, 2, 13, 1))
sketch8.addConstraint(Sketcher.Constraint("Coincident", 13, 2, 14, 1))
sketch8.addConstraint(Sketcher.Constraint("Coincident", 14, 2, 15, 1))
sketch8.addConstraint(Sketcher.Constraint("Coincident", 15, 2, 12, 1))
sketch8.addConstraint(Sketcher.Constraint("Coincident", 16, 2, 17, 1))
sketch8.addConstraint(Sketcher.Constraint("Coincident", 17, 2, 18, 1))
sketch8.addConstraint(Sketcher.Constraint("Coincident", 18, 2, 19, 1))
sketch8.addConstraint(Sketcher.Constraint("Coincident", 19, 2, 16, 1))
sketch8.addConstraint(Sketcher.Constraint("Vertical", 0))
sketch8.addConstraint(Sketcher.Constraint("Horizontal", 1))
sketch8.addConstraint(Sketcher.Constraint("Vertical", 2))
sketch8.addConstraint(Sketcher.Constraint("Horizontal", 3))
sketch8.addConstraint(Sketcher.Constraint("Vertical", 4))
sketch8.addConstraint(Sketcher.Constraint("Horizontal", 5))
sketch8.addConstraint(Sketcher.Constraint("Vertical", 6))
sketch8.addConstraint(Sketcher.Constraint("Horizontal", 7))
sketch8.addConstraint(Sketcher.Constraint("Vertical", 8))
sketch8.addConstraint(Sketcher.Constraint("Horizontal", 9))
sketch8.addConstraint(Sketcher.Constraint("Vertical", 10))
sketch8.addConstraint(Sketcher.Constraint("Horizontal", 11))
sketch8.addConstraint(Sketcher.Constraint("Vertical", 12))
sketch8.addConstraint(Sketcher.Constraint("Horizontal", 13))
sketch8.addConstraint(Sketcher.Constraint("Vertical", 14))
sketch8.addConstraint(Sketcher.Constraint("Horizontal", 15))
sketch8.addConstraint(Sketcher.Constraint("Vertical", 16))
sketch8.addConstraint(Sketcher.Constraint("Horizontal", 17))
sketch8.addConstraint(Sketcher.Constraint("Vertical", 18))
sketch8.addConstraint(Sketcher.Constraint("Horizontal", 19))
sketch8.addConstraint(Sketcher.Constraint("Symmetric", 5, 2, 12, 2, -2))
sketch8.addConstraint(Sketcher.Constraint("Symmetric", 7, 2, 14, 2, -2))
sketch8.addConstraint(Sketcher.Constraint("Symmetric", 9, 2, 16, 2, -2))
sketch8.addConstraint(Sketcher.Constraint("Symmetric", 11, 2, 18, 2, -2))
sketch8.addConstraint(Sketcher.Constraint("Horizontal", 1, 2, 4, 2))
sketch8.addConstraint(Sketcher.Constraint("Horizontal", 3, 2, 6, 2))
sketch8.addConstraint(Sketcher.Constraint("Horizontal", 5, 2, 8, 2))
sketch8.addConstraint(Sketcher.Constraint("Horizontal", 7, 2, 10, 2))
sketch8.addConstraint(Sketcher.Constraint("Equal", 3, 5))
sketch8.addConstraint(Sketcher.Constraint("Equal", 7, 9))
sketch8.addConstraint(Sketcher.Constraint("DistanceY", 0, 2, 0, 1, Q("8.1 mm")))
sketch8.addConstraint(Sketcher.Constraint("DistanceX", 1, 1, 1, 2, Q("1.78 mm")))
sketch8.addConstraint(Sketcher.Constraint("DistanceX", 1, 2, 8, 2, Q("3.3 mm")))
sketch8.addConstraint(Sketcher.Constraint("DistanceX", 13, 2, 4, 2, Q("3.3 mm")))
sketch8.addConstraint(Sketcher.Constraint("DistanceX", 17, 2, 0, 2, Q("3.3 mm")))
sketch8.addConstraint(Sketcher.Constraint("DistanceY", 0, 2, -1, 1, Q("30.42 mm")))
pocket5 = body.newObject("PartDesign::Pocket", "Pocket004")
pocket5.Profile = sketch8
pocket5.Length = 0.1
pocket5.Reversed = True

sketch9 = body.newObject("Sketcher::SketchObject", "Sketch008")
sketch9.AttachmentSupport = (doc.getObject("XY_Plane"), [""])
sketch9.MapMode = "FlatFace"
sketch9.AttachmentOffset = App.Placement(V(0, 0, 1.6), App.Rotation())
sketch9.addGeometry(Part.LineSegment(V(1.6, -22.3, 0), V(1.6, -30.4, 0)), False)
sketch9.addGeometry(Part.LineSegment(V(1.6, -30.4, 0), V(3.4, -30.4, 0)), False)
sketch9.addGeometry(Part.LineSegment(V(3.4, -30.4, 0), V(3.4, -22.3, 0)), False)
sketch9.addGeometry(Part.LineSegment(V(3.4, -22.3, 0), V(1.6, -22.3, 0)), False)
sketch9.addGeometry(Part.LineSegment(V(-0.9, -22.3, 0), V(-0.9, -30.4, 0)), False)
sketch9.addGeometry(Part.LineSegment(V(-0.9, -30.4, 0), V(0.9, -30.4, 0)), False)
sketch9.addGeometry(Part.LineSegment(V(0.9, -30.4, 0), V(0.9, -22.3, 0)), False)
sketch9.addGeometry(Part.LineSegment(V(0.9, -22.3, 0), V(-0.9, -22.3, 0)), False)
sketch9.addGeometry(Part.LineSegment(V(-6, -22.3, 0), V(-6, -30.4, 0)), False)
sketch9.addGeometry(Part.LineSegment(V(-6, -30.4, 0), V(-4.2, -30.4, 0)), False)
sketch9.addGeometry(Part.LineSegment(V(-4.2, -30.4, 0), V(-4.2, -22.3, 0)), False)
sketch9.addGeometry(Part.LineSegment(V(-4.2, -22.3, 0), V(-6, -22.3, 0)), False)
sketch9.addGeometry(Part.LineSegment(V(-3.4, -22.3, 0), V(-3.4, -30.4, 0)), False)
sketch9.addGeometry(Part.LineSegment(V(-3.4, -30.4, 0), V(-1.6, -30.4, 0)), False)
sketch9.addGeometry(Part.LineSegment(V(-1.6, -30.4, 0), V(-1.6, -22.3, 0)), False)
sketch9.addGeometry(Part.LineSegment(V(-1.6, -22.3, 0), V(-3.4, -22.3, 0)), False)
sketch9.addGeometry(Part.LineSegment(V(4.2, -22.3, 0), V(4.2, -30.4, 0)), False)
sketch9.addGeometry(Part.LineSegment(V(4.2, -30.4, 0), V(6, -30.4, 0)), False)
sketch9.addGeometry(Part.LineSegment(V(6, -30.4, 0), V(6, -22.3, 0)), False)
sketch9.addGeometry(Part.LineSegment(V(6, -22.3, 0), V(4.2, -22.3, 0)), False)
sketch9.addConstraint(Sketcher.Constraint("Coincident", 0, 2, 1, 1))
sketch9.addConstraint(Sketcher.Constraint("Coincident", 1, 2, 2, 1))
sketch9.addConstraint(Sketcher.Constraint("Coincident", 2, 2, 3, 1))
sketch9.addConstraint(Sketcher.Constraint("Coincident", 3, 2, 0, 1))
sketch9.addConstraint(Sketcher.Constraint("Coincident", 4, 2, 5, 1))
sketch9.addConstraint(Sketcher.Constraint("Coincident", 5, 2, 6, 1))
sketch9.addConstraint(Sketcher.Constraint("Coincident", 6, 2, 7, 1))
sketch9.addConstraint(Sketcher.Constraint("Coincident", 7, 2, 4, 1))
sketch9.addConstraint(Sketcher.Constraint("Coincident", 8, 2, 9, 1))
sketch9.addConstraint(Sketcher.Constraint("Coincident", 9, 2, 10, 1))
sketch9.addConstraint(Sketcher.Constraint("Coincident", 10, 2, 11, 1))
sketch9.addConstraint(Sketcher.Constraint("Coincident", 11, 2, 8, 1))
sketch9.addConstraint(Sketcher.Constraint("Coincident", 12, 2, 13, 1))
sketch9.addConstraint(Sketcher.Constraint("Coincident", 13, 2, 14, 1))
sketch9.addConstraint(Sketcher.Constraint("Coincident", 14, 2, 15, 1))
sketch9.addConstraint(Sketcher.Constraint("Coincident", 15, 2, 12, 1))
sketch9.addConstraint(Sketcher.Constraint("Coincident", 16, 2, 17, 1))
sketch9.addConstraint(Sketcher.Constraint("Coincident", 17, 2, 18, 1))
sketch9.addConstraint(Sketcher.Constraint("Coincident", 18, 2, 19, 1))
sketch9.addConstraint(Sketcher.Constraint("Coincident", 19, 2, 16, 1))
sketch9.addConstraint(Sketcher.Constraint("Vertical", 0))
sketch9.addConstraint(Sketcher.Constraint("Horizontal", 1))
sketch9.addConstraint(Sketcher.Constraint("Vertical", 2))
sketch9.addConstraint(Sketcher.Constraint("Horizontal", 3))
sketch9.addConstraint(Sketcher.Constraint("Vertical", 4))
sketch9.addConstraint(Sketcher.Constraint("Horizontal", 5))
sketch9.addConstraint(Sketcher.Constraint("Vertical", 6))
sketch9.addConstraint(Sketcher.Constraint("Horizontal", 7))
sketch9.addConstraint(Sketcher.Constraint("Vertical", 8))
sketch9.addConstraint(Sketcher.Constraint("Horizontal", 9))
sketch9.addConstraint(Sketcher.Constraint("Vertical", 10))
sketch9.addConstraint(Sketcher.Constraint("Horizontal", 11))
sketch9.addConstraint(Sketcher.Constraint("Vertical", 12))
sketch9.addConstraint(Sketcher.Constraint("Horizontal", 13))
sketch9.addConstraint(Sketcher.Constraint("Vertical", 14))
sketch9.addConstraint(Sketcher.Constraint("Horizontal", 15))
sketch9.addConstraint(Sketcher.Constraint("Vertical", 16))
sketch9.addConstraint(Sketcher.Constraint("Horizontal", 17))
sketch9.addConstraint(Sketcher.Constraint("Vertical", 18))
sketch9.addConstraint(Sketcher.Constraint("Horizontal", 19))
sketch9.addConstraint(Sketcher.Constraint("Symmetric", 1, 2, 12, 2, -2))
sketch9.addConstraint(Sketcher.Constraint("Symmetric", 3, 2, 14, 2, -2))
sketch9.addConstraint(Sketcher.Constraint("Symmetric", 9, 2, 16, 2, -2))
sketch9.addConstraint(Sketcher.Constraint("Symmetric", 11, 2, 18, 2, -2))
sketch9.addConstraint(Sketcher.Constraint("Horizontal", 1, 2, 4, 2))
sketch9.addConstraint(Sketcher.Constraint("Horizontal", 3, 2, 6, 2))
sketch9.addConstraint(Sketcher.Constraint("Horizontal", 5, 2, 8, 2))
sketch9.addConstraint(Sketcher.Constraint("Horizontal", 7, 2, 10, 2))
sketch9.addConstraint(Sketcher.Constraint("Equal", 3, 5))
sketch9.addConstraint(Sketcher.Constraint("Equal", 7, 9))
sketch9.addConstraint(Sketcher.Constraint("DistanceY", 0, 2, 0, 1, Q("8.1 mm")))
sketch9.addConstraint(Sketcher.Constraint("DistanceX", 1, 1, 1, 2, Q("1.78 mm")))
sketch9.addConstraint(Sketcher.Constraint("DistanceX", 8, 2, 1, 2, Q("9.4 mm")))
sketch9.addConstraint(Sketcher.Constraint("DistanceX", 9, 2, 4, 2, Q("3.3 mm")))
sketch9.addConstraint(Sketcher.Constraint("DistanceX", 13, 2, 0, 2, Q("3.3 mm")))
sketch9.addConstraint(Sketcher.Constraint("DistanceY", 0, 2, -1, 1, Q("30.42 mm")))
pocket6 = body.newObject("PartDesign::Pocket", "Pocket005")
pocket6.Profile = sketch9
pocket6.Length = 0.1

doc.recompute()
